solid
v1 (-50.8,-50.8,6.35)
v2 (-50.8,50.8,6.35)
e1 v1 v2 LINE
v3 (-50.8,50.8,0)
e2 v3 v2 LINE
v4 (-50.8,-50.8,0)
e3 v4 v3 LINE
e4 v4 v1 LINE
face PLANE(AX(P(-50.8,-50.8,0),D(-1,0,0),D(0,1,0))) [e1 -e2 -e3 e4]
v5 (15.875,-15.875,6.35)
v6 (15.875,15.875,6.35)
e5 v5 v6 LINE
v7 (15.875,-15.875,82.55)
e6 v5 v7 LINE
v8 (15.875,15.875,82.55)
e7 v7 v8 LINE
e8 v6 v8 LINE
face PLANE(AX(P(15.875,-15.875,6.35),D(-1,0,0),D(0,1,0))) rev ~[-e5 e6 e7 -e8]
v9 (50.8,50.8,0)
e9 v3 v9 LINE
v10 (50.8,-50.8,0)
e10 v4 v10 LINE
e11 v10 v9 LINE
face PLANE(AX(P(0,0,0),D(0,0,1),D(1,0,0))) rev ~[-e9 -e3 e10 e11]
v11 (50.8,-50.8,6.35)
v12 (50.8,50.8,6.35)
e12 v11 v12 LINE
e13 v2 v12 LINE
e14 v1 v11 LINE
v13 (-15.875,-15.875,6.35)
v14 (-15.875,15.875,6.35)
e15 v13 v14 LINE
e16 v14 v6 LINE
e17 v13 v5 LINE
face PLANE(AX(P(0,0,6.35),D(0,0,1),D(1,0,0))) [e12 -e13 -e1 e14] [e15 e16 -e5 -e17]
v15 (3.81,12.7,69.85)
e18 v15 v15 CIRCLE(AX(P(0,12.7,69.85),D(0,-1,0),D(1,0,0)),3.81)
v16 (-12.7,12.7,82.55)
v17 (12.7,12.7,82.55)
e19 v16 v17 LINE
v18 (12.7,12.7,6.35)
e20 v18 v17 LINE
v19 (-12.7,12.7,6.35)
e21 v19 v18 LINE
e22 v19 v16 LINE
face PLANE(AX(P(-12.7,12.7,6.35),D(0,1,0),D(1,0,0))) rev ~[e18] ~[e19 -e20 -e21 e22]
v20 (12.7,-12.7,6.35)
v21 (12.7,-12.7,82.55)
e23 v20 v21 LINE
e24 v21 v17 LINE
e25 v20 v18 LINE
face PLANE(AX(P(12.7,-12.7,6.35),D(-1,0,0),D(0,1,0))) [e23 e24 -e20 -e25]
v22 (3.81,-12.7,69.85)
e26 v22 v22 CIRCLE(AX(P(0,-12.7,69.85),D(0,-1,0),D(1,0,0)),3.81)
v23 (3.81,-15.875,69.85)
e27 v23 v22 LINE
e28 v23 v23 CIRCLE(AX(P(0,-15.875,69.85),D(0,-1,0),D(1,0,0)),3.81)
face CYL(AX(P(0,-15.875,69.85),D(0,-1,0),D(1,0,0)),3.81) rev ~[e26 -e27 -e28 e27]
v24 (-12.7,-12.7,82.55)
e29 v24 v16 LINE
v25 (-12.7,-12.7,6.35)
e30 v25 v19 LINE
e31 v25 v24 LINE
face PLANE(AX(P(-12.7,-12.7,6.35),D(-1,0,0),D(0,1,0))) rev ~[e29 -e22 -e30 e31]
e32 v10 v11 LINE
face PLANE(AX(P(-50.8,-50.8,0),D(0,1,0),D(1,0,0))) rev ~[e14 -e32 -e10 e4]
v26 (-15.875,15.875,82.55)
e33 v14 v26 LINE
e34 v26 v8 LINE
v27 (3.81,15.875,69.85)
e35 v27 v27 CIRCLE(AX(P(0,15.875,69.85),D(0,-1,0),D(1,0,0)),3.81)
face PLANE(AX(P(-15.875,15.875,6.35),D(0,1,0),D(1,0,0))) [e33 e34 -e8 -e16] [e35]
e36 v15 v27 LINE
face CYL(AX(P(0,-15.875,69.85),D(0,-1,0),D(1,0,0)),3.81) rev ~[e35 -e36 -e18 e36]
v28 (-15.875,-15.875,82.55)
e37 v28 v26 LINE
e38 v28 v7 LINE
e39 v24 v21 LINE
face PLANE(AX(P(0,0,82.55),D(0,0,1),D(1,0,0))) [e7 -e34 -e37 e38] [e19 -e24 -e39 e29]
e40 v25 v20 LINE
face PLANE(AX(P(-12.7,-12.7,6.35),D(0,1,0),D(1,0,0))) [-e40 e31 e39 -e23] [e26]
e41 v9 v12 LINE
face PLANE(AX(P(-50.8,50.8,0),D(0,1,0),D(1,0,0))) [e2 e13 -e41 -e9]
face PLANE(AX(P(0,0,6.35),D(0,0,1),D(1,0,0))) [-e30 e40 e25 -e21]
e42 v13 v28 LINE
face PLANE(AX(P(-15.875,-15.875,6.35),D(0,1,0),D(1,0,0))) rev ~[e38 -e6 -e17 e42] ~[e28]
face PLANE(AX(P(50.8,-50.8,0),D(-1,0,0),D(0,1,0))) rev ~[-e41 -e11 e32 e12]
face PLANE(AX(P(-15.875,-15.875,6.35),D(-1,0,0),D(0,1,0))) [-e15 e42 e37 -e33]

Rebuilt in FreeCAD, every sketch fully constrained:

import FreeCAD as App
import Part
import Sketcher
Q = App.Units.Quantity


def add_polygon(sketch, points):
    """Adds a closed chain of lines whose ends are joined by coincident constraints."""
    first, n = sketch.GeometryCount, len(points)
    for a, b in zip(points, points[1:] + points[:1]):
        sketch.addGeometry(Part.LineSegment(App.Vector(*a, 0), App.Vector(*b, 0)), False)
    for i in range(n):
        sketch.addConstraint(Sketcher.Constraint("Coincident", first + i, 2, first + (i + 1) % n, 1))

doc = App.newDocument("Part")
body = doc.addObject("PartDesign::Body", "Body")

# Sketch on XY plane
sketch1 = body.newObject("Sketcher::SketchObject", "Sketch")
sketch1.AttachmentSupport = (doc.getObject("XY_Plane"), [""])
sketch1.MapMode = "FlatFace"
add_polygon(sketch1, [(-51, 51), (-51, -51), (51, -51), (51, 51)])  # lines 0-3
sketch1.addConstraint([
    Sketcher.Constraint("Vertical", 0),
    Sketcher.Constraint("Horizontal", 1),
    Sketcher.Constraint("Vertical", 2),
    Sketcher.Constraint("Horizontal", 3),
    Sketcher.Constraint("Symmetric", 0, 2, 2, 2, -1, 1),
    Sketcher.Constraint("Equal", 3, 0),
    Sketcher.Constraint("DistanceX", 1, 1, 1, 2, Q("4 in")),
])
pad1 = body.newObject("PartDesign::Pad", "Pad")
pad1.Profile = sketch1
pad1.Length = Q("0.25 in")

# Sketch on XY plane
sketch2 = body.newObject("Sketcher::SketchObject", "Sketch001")
sketch2.AttachmentSupport = (doc.getObject("XY_Plane"), [""])
sketch2.MapMode = "FlatFace"
sketch2.AttachmentOffset = App.Placement(App.Vector(0, 0, 0.25 * 25.4), App.Rotation())
add_polygon(sketch2, [(-16, 16), (-16, -16), (16, -16), (16, 16)])  # lines 0-3
add_polygon(sketch2, [(13, -13), (-13, -13), (-13, 13), (13, 13)])  # lines 4-7
sketch2.addConstraint([
    Sketcher.Constraint("Vertical", 0),
    Sketcher.Constraint("Horizontal", 1),
    Sketcher.Constraint("Vertical", 2),
    Sketcher.Constraint("Horizontal", 3),
    Sketcher.Constraint("Horizontal", 4),
    Sketcher.Constraint("Vertical", 5),
    Sketcher.Constraint("Horizontal", 6),
    Sketcher.Constraint("Vertical", 7),
    Sketcher.Constraint("Symmetric", 0, 2, 2, 2, -1, 1),
    Sketcher.Constraint("Symmetric", 4, 2, 6, 2, -1, 1),
    Sketcher.Constraint("Equal", 3, 0),
    Sketcher.Constraint("Equal", 6, 5),
    Sketcher.Constraint("DistanceX", 4, 2, 4, 1, Q("1 in")),
    Sketcher.Constraint("DistanceX", 1, 1, 1, 2, Q("1.25 in")),
])
pad2 = body.newObject("PartDesign::Pad", "Pad001")
pad2.Profile = sketch2
pad2.Length = Q("3 in")

# Sketch on XZ plane
sketch3 = body.newObject("Sketcher::SketchObject", "Sketch002")
sketch3.AttachmentSupport = (doc.getObject("XZ_Plane"), [""])
sketch3.MapMode = "FlatFace"
sketch3.AttachmentOffset = App.Placement(App.Vector(0, 0, 0.625 * 25.4), App.Rotation())
sketch3.addGeometry(Part.Circle(App.Vector(0, 69.8, 0), App.Vector(0, 0, 1), 3.8), False)
sketch3.addConstraint([
    Sketcher.Constraint("PointOnObject", 0, 3, -2),
    Sketcher.Constraint("Diameter", 0, Q("0.3 in")),
    Sketcher.Constraint("DistanceY", -1, 1, 0, 3, Q("2.75 in")),
])
pocket1 = body.newObject("PartDesign::Pocket", "Pocket")
pocket1.Profile = sketch3
pocket1.Type = "ThroughAll"

doc.recompute()
